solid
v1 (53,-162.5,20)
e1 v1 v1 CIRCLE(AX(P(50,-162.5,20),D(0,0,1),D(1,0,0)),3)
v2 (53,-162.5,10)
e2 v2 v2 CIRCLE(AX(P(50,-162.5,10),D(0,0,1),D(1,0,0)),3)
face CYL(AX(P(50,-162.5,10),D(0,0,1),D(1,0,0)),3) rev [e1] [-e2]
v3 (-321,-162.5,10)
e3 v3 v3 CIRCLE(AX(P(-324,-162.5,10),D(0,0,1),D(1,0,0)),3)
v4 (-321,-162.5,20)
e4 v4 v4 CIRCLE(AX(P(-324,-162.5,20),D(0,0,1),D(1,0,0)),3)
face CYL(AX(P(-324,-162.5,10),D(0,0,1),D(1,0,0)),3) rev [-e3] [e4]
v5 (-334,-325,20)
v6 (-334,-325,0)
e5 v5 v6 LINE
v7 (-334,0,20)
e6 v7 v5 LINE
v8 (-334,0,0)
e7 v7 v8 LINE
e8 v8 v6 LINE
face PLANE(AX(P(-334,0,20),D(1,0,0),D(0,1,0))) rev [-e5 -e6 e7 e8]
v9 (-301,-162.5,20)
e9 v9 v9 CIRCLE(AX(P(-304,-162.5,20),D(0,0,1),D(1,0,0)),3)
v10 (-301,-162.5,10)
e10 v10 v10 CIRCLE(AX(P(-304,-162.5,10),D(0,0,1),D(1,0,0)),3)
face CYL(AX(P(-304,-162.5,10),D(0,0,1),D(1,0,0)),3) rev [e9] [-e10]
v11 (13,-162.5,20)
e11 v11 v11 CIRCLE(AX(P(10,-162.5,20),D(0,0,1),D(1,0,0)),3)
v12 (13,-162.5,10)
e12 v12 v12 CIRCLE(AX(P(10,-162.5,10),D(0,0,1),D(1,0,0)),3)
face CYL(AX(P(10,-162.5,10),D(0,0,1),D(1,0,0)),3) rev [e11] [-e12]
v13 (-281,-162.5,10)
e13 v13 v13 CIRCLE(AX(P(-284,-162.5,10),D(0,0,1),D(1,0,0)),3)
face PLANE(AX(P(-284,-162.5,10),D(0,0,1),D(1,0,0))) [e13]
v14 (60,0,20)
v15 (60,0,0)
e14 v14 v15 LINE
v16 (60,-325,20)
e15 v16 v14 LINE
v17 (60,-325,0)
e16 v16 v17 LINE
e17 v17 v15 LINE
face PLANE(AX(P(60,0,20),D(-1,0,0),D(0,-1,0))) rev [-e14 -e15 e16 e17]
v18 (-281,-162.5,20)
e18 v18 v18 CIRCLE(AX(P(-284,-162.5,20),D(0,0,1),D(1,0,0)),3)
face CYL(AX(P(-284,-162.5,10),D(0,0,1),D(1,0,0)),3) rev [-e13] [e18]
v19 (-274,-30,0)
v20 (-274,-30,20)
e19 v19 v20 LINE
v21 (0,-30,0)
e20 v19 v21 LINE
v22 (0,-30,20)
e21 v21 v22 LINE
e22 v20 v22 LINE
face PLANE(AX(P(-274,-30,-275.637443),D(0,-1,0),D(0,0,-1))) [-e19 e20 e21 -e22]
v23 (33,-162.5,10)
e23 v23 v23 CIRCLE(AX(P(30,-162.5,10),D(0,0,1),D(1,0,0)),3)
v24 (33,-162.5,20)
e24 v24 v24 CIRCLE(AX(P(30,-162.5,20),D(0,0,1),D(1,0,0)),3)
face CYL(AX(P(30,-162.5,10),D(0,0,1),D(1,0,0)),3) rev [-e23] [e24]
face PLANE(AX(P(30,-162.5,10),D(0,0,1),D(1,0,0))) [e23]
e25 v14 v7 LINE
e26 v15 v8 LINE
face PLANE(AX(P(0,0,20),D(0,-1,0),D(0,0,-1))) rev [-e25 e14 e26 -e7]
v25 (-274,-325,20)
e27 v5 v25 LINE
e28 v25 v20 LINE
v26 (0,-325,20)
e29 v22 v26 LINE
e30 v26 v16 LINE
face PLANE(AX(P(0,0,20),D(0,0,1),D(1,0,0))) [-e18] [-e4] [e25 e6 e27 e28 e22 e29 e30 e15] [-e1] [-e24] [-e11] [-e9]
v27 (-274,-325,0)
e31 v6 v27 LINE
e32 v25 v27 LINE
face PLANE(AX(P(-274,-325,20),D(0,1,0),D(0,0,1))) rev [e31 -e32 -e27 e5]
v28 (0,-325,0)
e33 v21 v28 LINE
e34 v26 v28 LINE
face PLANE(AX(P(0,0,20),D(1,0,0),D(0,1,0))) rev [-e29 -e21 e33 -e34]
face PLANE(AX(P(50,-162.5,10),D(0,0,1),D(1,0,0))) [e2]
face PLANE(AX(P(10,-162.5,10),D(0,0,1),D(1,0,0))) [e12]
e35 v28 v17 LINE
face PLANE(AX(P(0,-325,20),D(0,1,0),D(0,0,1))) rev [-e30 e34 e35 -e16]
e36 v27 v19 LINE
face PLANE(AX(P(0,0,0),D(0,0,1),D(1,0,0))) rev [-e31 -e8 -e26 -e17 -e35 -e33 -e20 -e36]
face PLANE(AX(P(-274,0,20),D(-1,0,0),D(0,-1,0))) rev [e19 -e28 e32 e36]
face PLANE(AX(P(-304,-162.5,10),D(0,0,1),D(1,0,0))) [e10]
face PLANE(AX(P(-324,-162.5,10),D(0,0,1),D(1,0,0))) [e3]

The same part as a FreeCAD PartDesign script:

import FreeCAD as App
import Part
import Sketcher
from FreeCAD import Vector


def add_polygon(sketch, points):
    """Adds a closed chain of lines whose ends are joined by coincident constraints."""
    first, n = sketch.GeometryCount, len(points)
    for a, b in zip(points, points[1:] + points[:1]):
        sketch.addGeometry(Part.LineSegment(App.Vector(*a, 0), App.Vector(*b, 0)), False)
    for i in range(n):
        sketch.addConstraint(Sketcher.Constraint("Coincident", first + i, 2, first + (i + 1) % n, 1))

doc = App.newDocument("Part")
body = doc.addObject("PartDesign::Body", "Body")

# Sketch on XY plane
sketch1 = doc.addObject("Sketcher::SketchObject", "Sketch")
body.addObject(sketch1)
sketch1.AttachmentSupport = (doc.XY_Plane, [""])
sketch1.MapMode = "FlatFace"
add_polygon(sketch1, [(0, 0), (0, -325), (60, -325), (60, 0)])  # lines 0-3
sketch1.addConstraint([
    Sketcher.Constraint("Vertical", 0),
    Sketcher.Constraint("Horizontal", 1),
    Sketcher.Constraint("Vertical", 2),
    Sketcher.Constraint("Horizontal", 3),
    Sketcher.Constraint("Coincident", 3, 2, -1, 1),
    Sketcher.Constraint("DistanceX", 1, 1, 1, 2, 60.0),
    Sketcher.Constraint("DistanceY", 0, 2, 0, 1, 325.0),
])
pad1 = doc.addObject("PartDesign::Pad", "Pad")
body.addObject(pad1)
pad1.Profile = sketch1
pad1.Length = 20
body2 = doc.addObject("PartDesign::Body", "Body001")

# Sketch on XY plane
sketch2 = doc.addObject("Sketcher::SketchObject", "Sketch001")
body2.addObject(sketch2)
sketch2.AttachmentSupport = (doc.getObject("XY_Plane001"), [""])
sketch2.MapMode = "FlatFace"
add_polygon(sketch2, [(-334, 0), (-334, -325), (-274, -325), (-274, 0)])  # lines 0-3
sketch2.addConstraint([
    Sketcher.Constraint("Vertical", 0),
    Sketcher.Constraint("Horizontal", 1),
    Sketcher.Constraint("Vertical", 2),
    Sketcher.Constraint("Horizontal", 3),
    Sketcher.Constraint("PointOnObject", 2, 2, -1),
    Sketcher.Constraint("DistanceX", 1, 1, 1, 2, 60.0),
    Sketcher.Constraint("DistanceY", 0, 2, 0, 1, 325.0),
    Sketcher.Constraint("DistanceX", 0, 2, -1, 1, 334.0),
])
pad2 = doc.addObject("PartDesign::Pad", "Pad001")
body2.addObject(pad2)
pad2.Profile = sketch2
pad2.Length = 20
body3 = doc.addObject("PartDesign::Body", "Body002")
body3.AllowCompound = True

# Sketch on XY plane
sketch3 = doc.addObject("Sketcher::SketchObject", "Sketch002")
body3.addObject(sketch3)
sketch3.AttachmentSupport = (doc.getObject("XY_Plane002"), [""])
sketch3.MapMode = "FlatFace"
sketch3.AttachmentOffset = App.Placement(Vector(0, 0, 20), App.Rotation())
sketch3.addGeometry([
    Part.Circle(Vector(50, -162.5, 0), Vector(0, 0, 1), 3),  # 0
    Part.Circle(Vector(10, -162.5, 0), Vector(0, 0, 1), 3),  # 1
    Part.Circle(Vector(30, -162.5, 0), Vector(0, 0, 1), 3),  # 2
    Part.Circle(Vector(-324, -162.5, 0), Vector(0, 0, 1), 3),  # 3
    Part.Circle(Vector(-304, -162.5, 0), Vector(0, 0, 1), 3),  # 4
    Part.Circle(Vector(-284, -162.5, 0), Vector(0, 0, 1), 3),  # 5
], False)
sketch3.addConstraint([
    Sketcher.Constraint("Equal", 0, 1),
    Sketcher.Constraint("Equal", 1, 2),
    Sketcher.Constraint("Equal", 2, 3),
    Sketcher.Constraint("Equal", 3, 4),
    Sketcher.Constraint("Equal", 4, 5),
    Sketcher.Constraint("Horizontal", 0, 3, 1, 3),
    Sketcher.Constraint("Horizontal", 1, 3, 2, 3),
    Sketcher.Constraint("Horizontal", 2, 3, 3, 3),
    Sketcher.Constraint("Horizontal", 3, 3, 4, 3),
    Sketcher.Constraint("Horizontal", 4, 3, 5, 3),
    Sketcher.Constraint("Diameter", 0, 6.0),
    Sketcher.Constraint("DistanceX", -1, 1, 0, 3, 50.0),
    Sketcher.Constraint("DistanceX", -1, 1, 1, 3, 10.0),
    Sketcher.Constraint("DistanceX", -1, 1, 2, 3, 30.0),
    Sketcher.Constraint("DistanceX", 3, 3, -1, 1, 324.0),
    Sketcher.Constraint("DistanceX", 4, 3, -1, 1, 304.0),
    Sketcher.Constraint("DistanceX", 5, 3, -1, 1, 284.0),
    Sketcher.Constraint("DistanceY", 0, 3, -1, 1, 162.5),
])
pad3 = doc.addObject("PartDesign::Pad", "Pad002")
body3.addObject(pad3)
pad3.Profile = sketch3
pad3.Length = 10
pad3.Reversed = True
doc.recompute()

body4 = doc.addObject("PartDesign::Body", "Body003")
body4.BaseFeature = body3
boolean = doc.addObject("PartDesign::Boolean", "Boolean")
body.addObject(boolean)
boolean.Type = "Cut"
boolean.addObjects([body4])
doc.recompute()

boolean2 = doc.addObject("PartDesign::Boolean", "Boolean001")
body2.addObject(boolean2)
boolean2.Type = "Cut"
boolean2.addObjects([body3])
body.AllowCompound = True
doc.recompute()

boolean3 = doc.addObject("PartDesign::Boolean", "Boolean002")
body.addObject(boolean3)
boolean3.Type = "Fuse"
boolean3.addObjects([body2])

# Sketch on XY plane
sketch4 = doc.addObject("Sketcher::SketchObject", "Sketch003")
body.addObject(sketch4)
sketch4.AttachmentSupport = (doc.XY_Plane, [""])
sketch4.MapMode = "FlatFace"
sketch4.AttachmentOffset = App.Placement(Vector(0, 0, 20), App.Rotation())
add_polygon(sketch4, [(-274, 0), (-274, -30), (0, -30), (0, 0)])  # lines 0-3
sketch4.addConstraint([
    Sketcher.Constraint("Vertical", 0),
    Sketcher.Constraint("Horizontal", 1),
    Sketcher.Constraint("Vertical", 2),
    Sketcher.Constraint("Horizontal", 3),
    Sketcher.Constraint("Coincident", 2, 2, -1, 1),
    Sketcher.Constraint("DistanceX", 1, 1, 1, 2, 274.0),
    Sketcher.Constraint("DistanceY", 0, 2, 0, 1, 30.0),
])
pad4 = doc.addObject("PartDesign::Pad", "Pad003")
body.addObject(pad4)
pad4.Profile = sketch4
pad4.Length = 20
pad4.Reversed = True

doc.recompute()
